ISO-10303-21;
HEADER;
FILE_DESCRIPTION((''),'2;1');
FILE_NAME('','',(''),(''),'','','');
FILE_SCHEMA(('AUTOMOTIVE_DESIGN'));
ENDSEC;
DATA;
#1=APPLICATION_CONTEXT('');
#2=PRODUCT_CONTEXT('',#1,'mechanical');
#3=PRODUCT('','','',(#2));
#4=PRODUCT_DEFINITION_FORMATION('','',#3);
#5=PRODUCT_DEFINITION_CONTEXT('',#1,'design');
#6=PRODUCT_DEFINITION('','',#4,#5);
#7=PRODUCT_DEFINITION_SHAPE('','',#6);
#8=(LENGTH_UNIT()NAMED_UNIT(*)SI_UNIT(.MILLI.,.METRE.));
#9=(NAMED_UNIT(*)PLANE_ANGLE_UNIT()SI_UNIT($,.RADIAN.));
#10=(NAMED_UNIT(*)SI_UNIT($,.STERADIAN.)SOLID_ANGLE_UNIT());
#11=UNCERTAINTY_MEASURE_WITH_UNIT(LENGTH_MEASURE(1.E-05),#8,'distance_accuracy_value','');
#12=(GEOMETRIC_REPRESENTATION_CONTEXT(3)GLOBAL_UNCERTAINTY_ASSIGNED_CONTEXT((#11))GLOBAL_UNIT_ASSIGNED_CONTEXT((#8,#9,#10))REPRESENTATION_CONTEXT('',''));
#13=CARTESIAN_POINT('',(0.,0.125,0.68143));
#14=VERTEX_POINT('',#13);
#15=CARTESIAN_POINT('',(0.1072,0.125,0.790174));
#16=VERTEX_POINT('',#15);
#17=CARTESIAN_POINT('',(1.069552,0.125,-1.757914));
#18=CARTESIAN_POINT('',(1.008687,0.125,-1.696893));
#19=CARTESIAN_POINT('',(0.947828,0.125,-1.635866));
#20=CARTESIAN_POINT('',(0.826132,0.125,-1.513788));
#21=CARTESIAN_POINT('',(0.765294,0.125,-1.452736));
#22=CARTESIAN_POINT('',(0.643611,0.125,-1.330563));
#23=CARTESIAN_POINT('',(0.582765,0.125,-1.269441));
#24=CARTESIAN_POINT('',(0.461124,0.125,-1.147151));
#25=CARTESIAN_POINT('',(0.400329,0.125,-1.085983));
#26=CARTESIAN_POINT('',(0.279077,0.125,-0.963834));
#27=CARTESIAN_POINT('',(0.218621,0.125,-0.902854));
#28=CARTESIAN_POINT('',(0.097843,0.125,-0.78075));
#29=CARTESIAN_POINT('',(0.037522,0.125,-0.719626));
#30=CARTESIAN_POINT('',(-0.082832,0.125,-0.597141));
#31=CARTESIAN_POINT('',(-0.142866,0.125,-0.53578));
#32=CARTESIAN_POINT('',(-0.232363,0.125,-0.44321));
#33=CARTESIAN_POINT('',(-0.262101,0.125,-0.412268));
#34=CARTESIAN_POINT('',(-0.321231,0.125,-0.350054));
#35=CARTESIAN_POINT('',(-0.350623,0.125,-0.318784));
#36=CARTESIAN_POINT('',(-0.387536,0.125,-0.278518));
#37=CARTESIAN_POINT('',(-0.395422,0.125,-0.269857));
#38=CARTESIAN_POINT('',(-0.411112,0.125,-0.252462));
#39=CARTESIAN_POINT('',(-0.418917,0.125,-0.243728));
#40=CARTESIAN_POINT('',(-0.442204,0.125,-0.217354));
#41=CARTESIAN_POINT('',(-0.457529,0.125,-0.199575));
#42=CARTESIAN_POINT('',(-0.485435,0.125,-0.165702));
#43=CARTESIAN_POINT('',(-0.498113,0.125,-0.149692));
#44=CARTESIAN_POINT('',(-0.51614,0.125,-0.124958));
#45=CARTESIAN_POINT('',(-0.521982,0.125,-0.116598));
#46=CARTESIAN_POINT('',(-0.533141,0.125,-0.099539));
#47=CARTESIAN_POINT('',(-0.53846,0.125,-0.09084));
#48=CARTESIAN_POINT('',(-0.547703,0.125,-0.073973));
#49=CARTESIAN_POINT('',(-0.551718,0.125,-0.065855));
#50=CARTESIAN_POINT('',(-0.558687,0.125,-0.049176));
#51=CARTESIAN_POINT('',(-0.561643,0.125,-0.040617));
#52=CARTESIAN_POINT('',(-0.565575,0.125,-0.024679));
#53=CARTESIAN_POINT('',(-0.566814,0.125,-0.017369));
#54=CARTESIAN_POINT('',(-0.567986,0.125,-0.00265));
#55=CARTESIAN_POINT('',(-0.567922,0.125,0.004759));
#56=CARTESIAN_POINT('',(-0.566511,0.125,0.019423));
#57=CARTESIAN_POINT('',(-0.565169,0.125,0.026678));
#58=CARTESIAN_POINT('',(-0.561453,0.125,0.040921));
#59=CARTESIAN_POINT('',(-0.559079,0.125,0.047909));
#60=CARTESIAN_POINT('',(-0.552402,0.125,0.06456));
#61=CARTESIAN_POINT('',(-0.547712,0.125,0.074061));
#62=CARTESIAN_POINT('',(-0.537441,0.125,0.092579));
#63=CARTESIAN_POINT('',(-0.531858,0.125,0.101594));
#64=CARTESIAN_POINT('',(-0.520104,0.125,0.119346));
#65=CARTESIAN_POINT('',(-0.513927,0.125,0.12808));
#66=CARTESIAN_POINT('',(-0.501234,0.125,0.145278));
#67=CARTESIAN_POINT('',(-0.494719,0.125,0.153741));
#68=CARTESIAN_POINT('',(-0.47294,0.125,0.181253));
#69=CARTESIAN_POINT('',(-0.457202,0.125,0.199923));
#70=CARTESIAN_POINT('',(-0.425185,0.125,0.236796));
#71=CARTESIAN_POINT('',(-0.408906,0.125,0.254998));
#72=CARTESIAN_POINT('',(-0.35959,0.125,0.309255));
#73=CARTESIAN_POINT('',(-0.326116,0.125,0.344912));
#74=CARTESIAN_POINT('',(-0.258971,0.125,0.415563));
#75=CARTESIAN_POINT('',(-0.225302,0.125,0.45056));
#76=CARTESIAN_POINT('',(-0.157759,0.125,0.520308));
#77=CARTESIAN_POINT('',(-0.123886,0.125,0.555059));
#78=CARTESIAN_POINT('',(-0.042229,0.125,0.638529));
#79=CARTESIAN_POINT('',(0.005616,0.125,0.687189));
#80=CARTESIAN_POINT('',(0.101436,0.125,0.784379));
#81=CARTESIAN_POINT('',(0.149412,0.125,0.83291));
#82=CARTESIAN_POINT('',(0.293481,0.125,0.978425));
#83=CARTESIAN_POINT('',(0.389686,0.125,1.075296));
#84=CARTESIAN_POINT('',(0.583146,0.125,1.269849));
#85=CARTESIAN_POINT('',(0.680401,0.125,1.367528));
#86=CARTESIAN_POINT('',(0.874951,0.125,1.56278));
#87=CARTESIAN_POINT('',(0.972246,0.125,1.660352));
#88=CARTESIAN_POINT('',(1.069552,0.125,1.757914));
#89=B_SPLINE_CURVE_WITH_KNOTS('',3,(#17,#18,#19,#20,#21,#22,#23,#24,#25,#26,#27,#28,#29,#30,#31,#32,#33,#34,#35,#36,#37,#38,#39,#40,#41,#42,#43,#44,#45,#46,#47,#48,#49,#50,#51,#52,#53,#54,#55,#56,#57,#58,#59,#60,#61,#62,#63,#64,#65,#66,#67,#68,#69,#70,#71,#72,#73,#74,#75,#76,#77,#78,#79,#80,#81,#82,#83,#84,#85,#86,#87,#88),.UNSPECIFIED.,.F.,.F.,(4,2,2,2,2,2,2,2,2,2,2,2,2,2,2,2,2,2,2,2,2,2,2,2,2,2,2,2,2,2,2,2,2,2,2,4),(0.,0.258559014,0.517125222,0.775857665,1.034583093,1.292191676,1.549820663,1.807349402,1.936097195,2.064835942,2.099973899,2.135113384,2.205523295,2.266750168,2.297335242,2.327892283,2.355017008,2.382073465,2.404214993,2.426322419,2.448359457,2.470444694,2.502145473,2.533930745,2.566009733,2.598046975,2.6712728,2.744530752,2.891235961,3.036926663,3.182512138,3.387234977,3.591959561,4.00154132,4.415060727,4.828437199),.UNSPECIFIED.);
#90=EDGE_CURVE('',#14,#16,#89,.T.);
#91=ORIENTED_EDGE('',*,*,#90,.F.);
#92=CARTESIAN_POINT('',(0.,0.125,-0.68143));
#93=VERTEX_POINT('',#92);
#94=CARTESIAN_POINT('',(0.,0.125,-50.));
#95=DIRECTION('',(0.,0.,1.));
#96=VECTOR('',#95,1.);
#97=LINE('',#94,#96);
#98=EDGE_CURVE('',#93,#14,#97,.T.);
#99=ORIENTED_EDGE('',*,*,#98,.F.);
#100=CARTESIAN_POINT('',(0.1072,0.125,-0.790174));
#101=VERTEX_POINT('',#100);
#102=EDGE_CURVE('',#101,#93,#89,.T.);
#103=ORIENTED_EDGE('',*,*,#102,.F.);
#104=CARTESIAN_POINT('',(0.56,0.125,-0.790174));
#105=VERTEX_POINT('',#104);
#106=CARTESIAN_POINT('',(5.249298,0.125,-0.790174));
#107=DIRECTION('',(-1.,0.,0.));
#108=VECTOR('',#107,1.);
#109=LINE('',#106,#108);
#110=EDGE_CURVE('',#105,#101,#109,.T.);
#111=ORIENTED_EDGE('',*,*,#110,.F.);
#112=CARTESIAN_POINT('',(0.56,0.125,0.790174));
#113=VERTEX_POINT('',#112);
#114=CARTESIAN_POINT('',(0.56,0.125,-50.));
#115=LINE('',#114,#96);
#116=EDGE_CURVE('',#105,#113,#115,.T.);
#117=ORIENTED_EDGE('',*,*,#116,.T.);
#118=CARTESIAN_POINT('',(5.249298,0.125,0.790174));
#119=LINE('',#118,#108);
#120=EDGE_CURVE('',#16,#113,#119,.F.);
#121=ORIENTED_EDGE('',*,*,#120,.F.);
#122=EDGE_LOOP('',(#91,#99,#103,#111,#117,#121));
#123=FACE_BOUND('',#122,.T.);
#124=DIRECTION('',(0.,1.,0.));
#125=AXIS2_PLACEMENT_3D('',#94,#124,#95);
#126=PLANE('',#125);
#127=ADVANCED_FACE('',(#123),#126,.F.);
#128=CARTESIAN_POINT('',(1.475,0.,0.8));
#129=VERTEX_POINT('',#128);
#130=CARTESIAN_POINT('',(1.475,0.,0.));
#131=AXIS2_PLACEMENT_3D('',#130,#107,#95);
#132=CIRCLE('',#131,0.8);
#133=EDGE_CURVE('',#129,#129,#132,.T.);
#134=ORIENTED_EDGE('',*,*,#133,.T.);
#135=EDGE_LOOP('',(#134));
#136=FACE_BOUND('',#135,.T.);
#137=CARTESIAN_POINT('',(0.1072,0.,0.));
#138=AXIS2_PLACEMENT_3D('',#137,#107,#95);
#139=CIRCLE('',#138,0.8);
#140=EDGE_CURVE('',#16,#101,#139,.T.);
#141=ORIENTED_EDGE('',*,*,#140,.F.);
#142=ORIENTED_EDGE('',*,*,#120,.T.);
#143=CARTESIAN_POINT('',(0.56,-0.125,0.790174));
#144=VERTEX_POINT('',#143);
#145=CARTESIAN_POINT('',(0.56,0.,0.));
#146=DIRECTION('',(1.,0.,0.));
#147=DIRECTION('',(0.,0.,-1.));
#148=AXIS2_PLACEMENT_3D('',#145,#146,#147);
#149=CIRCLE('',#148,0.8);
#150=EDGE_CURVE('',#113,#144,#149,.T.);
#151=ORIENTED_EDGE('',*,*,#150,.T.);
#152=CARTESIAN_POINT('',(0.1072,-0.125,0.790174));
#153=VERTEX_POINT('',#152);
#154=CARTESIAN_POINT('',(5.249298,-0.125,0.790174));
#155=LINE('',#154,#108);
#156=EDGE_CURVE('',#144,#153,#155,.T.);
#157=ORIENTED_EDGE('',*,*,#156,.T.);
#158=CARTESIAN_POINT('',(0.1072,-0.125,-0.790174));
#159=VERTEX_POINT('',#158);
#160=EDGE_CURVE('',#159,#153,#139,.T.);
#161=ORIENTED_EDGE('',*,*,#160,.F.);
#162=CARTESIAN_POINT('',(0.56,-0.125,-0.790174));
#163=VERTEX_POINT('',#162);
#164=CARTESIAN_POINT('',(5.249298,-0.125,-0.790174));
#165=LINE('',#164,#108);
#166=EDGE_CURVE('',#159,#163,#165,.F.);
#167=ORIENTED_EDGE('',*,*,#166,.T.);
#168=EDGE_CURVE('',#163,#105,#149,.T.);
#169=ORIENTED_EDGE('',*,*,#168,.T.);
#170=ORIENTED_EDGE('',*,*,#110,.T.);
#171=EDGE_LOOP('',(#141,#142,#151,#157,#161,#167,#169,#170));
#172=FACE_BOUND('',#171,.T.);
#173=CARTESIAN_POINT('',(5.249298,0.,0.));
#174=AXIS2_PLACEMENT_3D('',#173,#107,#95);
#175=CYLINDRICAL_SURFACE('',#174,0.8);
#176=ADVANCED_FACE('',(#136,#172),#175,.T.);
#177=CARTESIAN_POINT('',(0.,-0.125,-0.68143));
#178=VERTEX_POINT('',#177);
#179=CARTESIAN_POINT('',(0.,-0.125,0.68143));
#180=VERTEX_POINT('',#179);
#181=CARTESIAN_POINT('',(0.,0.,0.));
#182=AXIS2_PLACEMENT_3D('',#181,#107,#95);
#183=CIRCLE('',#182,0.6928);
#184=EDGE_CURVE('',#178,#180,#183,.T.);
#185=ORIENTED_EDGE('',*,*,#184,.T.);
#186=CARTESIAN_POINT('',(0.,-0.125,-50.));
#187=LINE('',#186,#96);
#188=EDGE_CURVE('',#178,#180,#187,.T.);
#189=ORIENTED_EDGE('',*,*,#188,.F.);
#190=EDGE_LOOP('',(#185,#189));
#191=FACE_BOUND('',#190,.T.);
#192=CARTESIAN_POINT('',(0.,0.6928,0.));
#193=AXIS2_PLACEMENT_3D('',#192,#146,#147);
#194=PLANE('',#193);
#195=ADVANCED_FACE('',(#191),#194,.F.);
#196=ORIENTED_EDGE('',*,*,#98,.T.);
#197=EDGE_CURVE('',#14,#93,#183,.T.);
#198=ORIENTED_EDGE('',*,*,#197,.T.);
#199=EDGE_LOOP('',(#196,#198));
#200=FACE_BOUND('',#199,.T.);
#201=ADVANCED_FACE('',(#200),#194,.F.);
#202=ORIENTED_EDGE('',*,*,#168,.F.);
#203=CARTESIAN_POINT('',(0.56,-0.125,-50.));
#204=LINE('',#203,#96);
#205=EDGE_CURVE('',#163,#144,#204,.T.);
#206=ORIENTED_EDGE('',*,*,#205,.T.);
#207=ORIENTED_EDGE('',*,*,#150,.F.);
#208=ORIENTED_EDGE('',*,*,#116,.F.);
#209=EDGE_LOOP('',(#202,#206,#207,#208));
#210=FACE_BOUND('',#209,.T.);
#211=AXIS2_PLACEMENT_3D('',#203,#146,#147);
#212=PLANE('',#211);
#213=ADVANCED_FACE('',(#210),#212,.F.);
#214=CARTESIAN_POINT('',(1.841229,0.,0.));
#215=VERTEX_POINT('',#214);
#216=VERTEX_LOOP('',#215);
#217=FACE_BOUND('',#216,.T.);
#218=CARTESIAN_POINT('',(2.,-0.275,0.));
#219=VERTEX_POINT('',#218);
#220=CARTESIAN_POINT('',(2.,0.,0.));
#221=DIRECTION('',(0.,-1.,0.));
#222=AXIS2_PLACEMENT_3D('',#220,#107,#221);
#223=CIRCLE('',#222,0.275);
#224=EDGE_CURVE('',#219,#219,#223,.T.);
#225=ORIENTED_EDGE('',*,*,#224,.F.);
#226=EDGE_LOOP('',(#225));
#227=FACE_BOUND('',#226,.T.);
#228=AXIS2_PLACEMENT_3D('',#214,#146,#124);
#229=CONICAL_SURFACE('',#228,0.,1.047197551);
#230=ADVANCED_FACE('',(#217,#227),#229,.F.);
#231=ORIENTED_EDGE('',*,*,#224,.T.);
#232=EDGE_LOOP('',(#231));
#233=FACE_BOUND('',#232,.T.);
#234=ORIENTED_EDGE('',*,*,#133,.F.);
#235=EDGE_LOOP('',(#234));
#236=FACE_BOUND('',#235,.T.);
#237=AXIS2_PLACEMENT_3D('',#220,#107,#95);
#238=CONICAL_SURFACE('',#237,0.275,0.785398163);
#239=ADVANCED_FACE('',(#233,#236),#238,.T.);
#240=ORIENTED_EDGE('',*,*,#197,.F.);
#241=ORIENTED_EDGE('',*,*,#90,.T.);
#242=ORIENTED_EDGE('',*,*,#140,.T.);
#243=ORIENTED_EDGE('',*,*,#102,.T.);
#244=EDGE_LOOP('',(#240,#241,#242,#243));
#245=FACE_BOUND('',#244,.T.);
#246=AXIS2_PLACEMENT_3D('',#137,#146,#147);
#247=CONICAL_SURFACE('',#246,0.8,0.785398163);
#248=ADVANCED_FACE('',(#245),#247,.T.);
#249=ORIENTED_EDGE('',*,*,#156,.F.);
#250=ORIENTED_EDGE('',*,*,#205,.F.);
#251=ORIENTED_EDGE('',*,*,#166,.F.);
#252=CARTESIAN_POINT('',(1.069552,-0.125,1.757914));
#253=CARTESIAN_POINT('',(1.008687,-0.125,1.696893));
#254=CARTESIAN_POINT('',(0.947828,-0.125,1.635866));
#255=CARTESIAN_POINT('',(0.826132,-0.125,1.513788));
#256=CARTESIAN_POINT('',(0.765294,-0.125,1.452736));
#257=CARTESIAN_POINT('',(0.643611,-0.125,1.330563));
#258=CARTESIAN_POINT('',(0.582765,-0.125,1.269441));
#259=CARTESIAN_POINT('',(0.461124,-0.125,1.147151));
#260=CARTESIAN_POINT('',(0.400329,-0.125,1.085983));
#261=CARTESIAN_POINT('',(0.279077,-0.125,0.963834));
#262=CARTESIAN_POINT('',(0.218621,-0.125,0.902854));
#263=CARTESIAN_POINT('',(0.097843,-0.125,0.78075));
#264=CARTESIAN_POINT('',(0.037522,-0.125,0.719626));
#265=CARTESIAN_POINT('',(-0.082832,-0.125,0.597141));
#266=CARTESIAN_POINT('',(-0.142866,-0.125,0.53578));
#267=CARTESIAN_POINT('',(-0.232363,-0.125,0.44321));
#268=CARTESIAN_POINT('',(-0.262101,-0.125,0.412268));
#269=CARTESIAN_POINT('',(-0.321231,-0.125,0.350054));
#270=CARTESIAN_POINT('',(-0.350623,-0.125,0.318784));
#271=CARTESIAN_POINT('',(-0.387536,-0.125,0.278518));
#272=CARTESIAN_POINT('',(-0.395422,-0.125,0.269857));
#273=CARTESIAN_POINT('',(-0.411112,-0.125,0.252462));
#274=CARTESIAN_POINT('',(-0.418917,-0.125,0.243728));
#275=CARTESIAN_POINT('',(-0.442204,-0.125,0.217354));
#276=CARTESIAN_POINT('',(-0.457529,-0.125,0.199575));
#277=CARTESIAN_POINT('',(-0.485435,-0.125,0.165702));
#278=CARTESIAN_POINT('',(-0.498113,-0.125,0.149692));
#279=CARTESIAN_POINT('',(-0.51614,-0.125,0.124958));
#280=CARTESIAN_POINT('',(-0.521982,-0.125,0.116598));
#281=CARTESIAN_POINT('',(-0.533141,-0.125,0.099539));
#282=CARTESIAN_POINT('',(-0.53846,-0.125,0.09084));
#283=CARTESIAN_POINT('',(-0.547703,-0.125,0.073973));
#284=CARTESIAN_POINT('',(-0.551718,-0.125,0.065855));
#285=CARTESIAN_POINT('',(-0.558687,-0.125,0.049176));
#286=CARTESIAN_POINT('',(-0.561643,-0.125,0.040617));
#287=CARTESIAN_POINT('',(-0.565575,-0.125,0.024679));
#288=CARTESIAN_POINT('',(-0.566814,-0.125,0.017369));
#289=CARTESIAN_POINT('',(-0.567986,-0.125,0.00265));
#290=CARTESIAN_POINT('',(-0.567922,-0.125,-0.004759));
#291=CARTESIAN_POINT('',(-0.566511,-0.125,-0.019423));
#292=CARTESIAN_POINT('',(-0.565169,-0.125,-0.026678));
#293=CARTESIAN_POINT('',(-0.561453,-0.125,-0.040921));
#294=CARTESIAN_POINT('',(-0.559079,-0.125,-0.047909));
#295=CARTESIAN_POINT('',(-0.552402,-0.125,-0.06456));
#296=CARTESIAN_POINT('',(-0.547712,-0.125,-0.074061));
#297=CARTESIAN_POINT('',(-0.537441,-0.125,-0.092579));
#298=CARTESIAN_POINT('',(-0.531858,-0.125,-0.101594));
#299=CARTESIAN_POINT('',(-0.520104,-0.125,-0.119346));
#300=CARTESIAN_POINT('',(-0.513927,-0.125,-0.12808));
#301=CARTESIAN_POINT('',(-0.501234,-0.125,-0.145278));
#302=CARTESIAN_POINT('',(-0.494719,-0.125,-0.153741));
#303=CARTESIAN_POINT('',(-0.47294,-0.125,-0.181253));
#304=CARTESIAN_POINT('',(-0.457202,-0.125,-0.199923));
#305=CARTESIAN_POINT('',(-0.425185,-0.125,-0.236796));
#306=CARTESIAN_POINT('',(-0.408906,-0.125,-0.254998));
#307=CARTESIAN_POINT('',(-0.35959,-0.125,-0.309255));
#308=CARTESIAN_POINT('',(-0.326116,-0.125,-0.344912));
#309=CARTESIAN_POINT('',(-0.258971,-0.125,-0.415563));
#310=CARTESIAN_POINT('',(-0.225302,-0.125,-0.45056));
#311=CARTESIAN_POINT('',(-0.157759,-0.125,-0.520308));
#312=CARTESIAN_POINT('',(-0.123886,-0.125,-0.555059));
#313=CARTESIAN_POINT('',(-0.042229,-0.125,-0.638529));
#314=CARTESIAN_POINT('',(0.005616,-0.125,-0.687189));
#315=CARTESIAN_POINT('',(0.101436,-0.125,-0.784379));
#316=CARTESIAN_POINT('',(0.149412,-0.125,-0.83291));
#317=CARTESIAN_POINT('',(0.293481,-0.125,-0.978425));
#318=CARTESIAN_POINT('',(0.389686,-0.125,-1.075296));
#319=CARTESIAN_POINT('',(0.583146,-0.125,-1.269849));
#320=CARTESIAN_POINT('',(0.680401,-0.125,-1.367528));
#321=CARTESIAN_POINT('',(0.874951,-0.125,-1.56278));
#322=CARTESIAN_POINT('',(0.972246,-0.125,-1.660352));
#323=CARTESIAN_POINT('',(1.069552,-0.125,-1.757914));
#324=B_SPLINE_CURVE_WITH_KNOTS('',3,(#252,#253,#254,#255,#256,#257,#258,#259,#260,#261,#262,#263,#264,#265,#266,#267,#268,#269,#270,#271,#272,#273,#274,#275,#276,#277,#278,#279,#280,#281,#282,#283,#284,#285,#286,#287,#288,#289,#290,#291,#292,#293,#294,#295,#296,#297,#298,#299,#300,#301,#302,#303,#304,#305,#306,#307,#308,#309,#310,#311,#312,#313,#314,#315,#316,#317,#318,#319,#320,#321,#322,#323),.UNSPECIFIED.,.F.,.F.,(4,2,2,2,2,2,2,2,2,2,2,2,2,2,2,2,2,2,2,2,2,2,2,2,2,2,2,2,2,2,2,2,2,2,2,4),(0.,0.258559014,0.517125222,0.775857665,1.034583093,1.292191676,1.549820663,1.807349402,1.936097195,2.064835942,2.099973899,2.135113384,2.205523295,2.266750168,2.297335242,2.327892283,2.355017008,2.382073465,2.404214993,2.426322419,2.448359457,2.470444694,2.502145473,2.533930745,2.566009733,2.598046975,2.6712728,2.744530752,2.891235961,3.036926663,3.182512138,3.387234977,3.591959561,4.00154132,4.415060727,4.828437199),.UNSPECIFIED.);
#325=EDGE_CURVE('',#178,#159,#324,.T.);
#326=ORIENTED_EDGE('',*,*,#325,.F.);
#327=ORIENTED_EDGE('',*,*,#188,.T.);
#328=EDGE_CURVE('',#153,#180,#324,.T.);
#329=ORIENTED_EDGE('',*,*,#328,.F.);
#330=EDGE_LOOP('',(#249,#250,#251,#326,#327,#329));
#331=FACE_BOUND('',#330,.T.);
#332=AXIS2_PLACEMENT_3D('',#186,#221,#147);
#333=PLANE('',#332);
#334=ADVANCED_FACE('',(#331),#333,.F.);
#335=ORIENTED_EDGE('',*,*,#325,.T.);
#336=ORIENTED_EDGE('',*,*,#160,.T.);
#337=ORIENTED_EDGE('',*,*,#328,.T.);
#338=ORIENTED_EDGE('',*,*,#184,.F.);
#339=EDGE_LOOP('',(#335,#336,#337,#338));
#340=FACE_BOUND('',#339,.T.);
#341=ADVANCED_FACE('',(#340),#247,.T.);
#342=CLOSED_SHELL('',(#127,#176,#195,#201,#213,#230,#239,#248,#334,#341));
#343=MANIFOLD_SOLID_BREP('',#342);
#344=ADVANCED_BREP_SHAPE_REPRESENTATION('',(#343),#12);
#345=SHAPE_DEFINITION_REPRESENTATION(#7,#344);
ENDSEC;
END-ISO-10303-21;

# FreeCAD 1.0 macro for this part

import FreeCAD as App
import Part
import Sketcher
Q = App.Units.Quantity

doc = App.newDocument("Part")
params = doc.addObject("Spreadsheet::Sheet", "Params")
for row, (alias, value) in enumerate([
    ("sketch1_width", "2 mm"),
    ("revolution_angle", "360 deg"),
    ("sketch2_width", "0.56 mm"),
    ("sketch2_height", "0.25 mm"),
    ("pocket1_length", "100 mm"),
    ("groove_angle", "360 deg"),
], start=1):
    params.set(f"A{row}", alias)
    params.set(f"B{row}", "=" + value)
    params.setAlias(f"B{row}", alias)

body = doc.addObject("PartDesign::Body", "Body")

# Sketch on XY plane
sketch1 = body.newObject("Sketcher::SketchObject", "Sketch")
sketch1.AttachmentSupport = (doc.getObject("XY_Plane"), [""])
sketch1.MapMode = "FlatFace"
sketch1.addGeometry([
    Part.LineSegment(App.Vector(0, 0, 0), App.Vector(2, 0, 0)),  # 0
    Part.LineSegment(App.Vector(2, 0, 0), App.Vector(2, 0.28, 0)),  # 1
    Part.LineSegment(App.Vector(2, 0.28, 0), App.Vector(1.48, 0.8, 0)),  # 2
    Part.LineSegment(App.Vector(1.48, 0.8, 0), App.Vector(0.11, 0.8, 0)),  # 3
    Part.LineSegment(App.Vector(0.11, 0.8, 0), App.Vector(0, 0.69, 0)),  # 4
    Part.LineSegment(App.Vector(0, 0.69, 0), App.Vector(0, 0, 0)),  # 5
], False)
sketch1.addConstraint([
    Sketcher.Constraint("Coincident", 0, 2, 1, 1),
    Sketcher.Constraint("Coincident", 1, 2, 2, 1),
    Sketcher.Constraint("Coincident", 2, 2, 3, 1),
    Sketcher.Constraint("Coincident", 3, 2, 4, 1),
    Sketcher.Constraint("Coincident", 4, 2, 5, 1),
    Sketcher.Constraint("Coincident", 5, 2, 0, 1),
    Sketcher.Constraint("Horizontal", 0),
    Sketcher.Constraint("Vertical", 1),
    Sketcher.Constraint("Horizontal", 3),
    Sketcher.Constraint("Vertical", 5),
    Sketcher.Constraint("Coincident", 5, 2, -1, 1),
    Sketcher.Constraint("Perpendicular", 2, 4),
    Sketcher.Constraint("DistanceX", 0, 1, 0, 2, 2.0),
    Sketcher.Constraint("Angle", 2, Q("135 deg")),
    Sketcher.Constraint("DistanceY", -1, 1, 2, 2, 0.8),
    Sketcher.Constraint("DistanceY", 1, 1, 1, 2, 0.275),
    Sketcher.Constraint("DistanceX", 3, 2, 3, 1, 1.3678),
])
sketch1.setExpression("Constraints[12]", "Params.sketch1_width")
revolution = body.newObject("PartDesign::Revolution", "Revolution")
revolution.Profile = sketch1
revolution.ReferenceAxis = (sketch1, ["H_Axis"])
revolution.setExpression("Angle", "Params.revolution_angle")

# Sketch on XY plane
sketch2 = body.newObject("Sketcher::SketchObject", "Sketch001")
sketch2.AttachmentSupport = (doc.getObject("XY_Plane"), [""])
sketch2.MapMode = "FlatFace"
sketch2.addGeometry([
    Part.LineSegment(App.Vector(0, 0.12, 0), App.Vector(0, -0.12, 0)),
    Part.LineSegment(App.Vector(0, -0.12, 0), App.Vector(0.56, -0.12, 0)),
    Part.LineSegment(App.Vector(0.56, -0.12, 0), App.Vector(0.56, 0.12, 0)),
    Part.LineSegment(App.Vector(0.56, 0.12, 0), App.Vector(0, 0.12, 0)),
], False)
sketch2.addConstraint([
    Sketcher.Constraint("Coincident", 0, 2, 1, 1),
    Sketcher.Constraint("Coincident", 1, 2, 2, 1),
    Sketcher.Constraint("Coincident", 2, 2, 3, 1),
    Sketcher.Constraint("Coincident", 3, 2, 0, 1),
    Sketcher.Constraint("Vertical", 0),
    Sketcher.Constraint("Horizontal", 1),
    Sketcher.Constraint("Vertical", 2),
    Sketcher.Constraint("Horizontal", 3),
    Sketcher.Constraint("Symmetric", 0, 2, 3, 2, -1, 1),
    Sketcher.Constraint("DistanceX", 1, 1, 1, 2, 0.56),
    Sketcher.Constraint("DistanceY", 0, 2, 0, 1, 0.25),
])
sketch2.setExpression("Constraints[9]", "Params.sketch2_width")
sketch2.setExpression("Constraints[10]", "Params.sketch2_height")
pocket1 = body.newObject("PartDesign::Pocket", "Pocket")
pocket1.Profile = sketch2
pocket1.setExpression("Length", "Params.pocket1_length")
pocket1.Midplane = True

# Sketch on XY plane
sketch3 = body.newObject("Sketcher::SketchObject", "Sketch002")
sketch3.AttachmentSupport = (doc.getObject("XY_Plane"), [""])
sketch3.MapMode = "FlatFace"
sketch3.addGeometry([
    Part.LineSegment(App.Vector(2, 0, 0), App.Vector(1.84, 0, 0)),
    Part.LineSegment(App.Vector(1.84, 0, 0), App.Vector(2, -0.28, 0)),
    Part.LineSegment(App.Vector(2, -0.28, 0), App.Vector(2, 0, 0)),
], False)
sketch3.addConstraint([
    Sketcher.Constraint("Coincident", 0, 2, 1, 1),
    Sketcher.Constraint("Coincident", 1, 2, 2, 1),
    Sketcher.Constraint("Coincident", 2, 2, 0, 1),
    Sketcher.Constraint("Horizontal", 0),
    Sketcher.Constraint("Vertical", 2),
    Sketcher.Constraint("PointOnObject", 0, 2, -1),
    Sketcher.Constraint("Angle", 1, Q("-60 deg")),
    Sketcher.Constraint("DistanceX", -1, 1, 1, 2, 2.0),
    Sketcher.Constraint("DistanceY", 2, 1, 2, 2, 0.275),
])
groove = body.newObject("PartDesign::Groove", "Groove")
groove.Profile = sketch3
groove.ReferenceAxis = (sketch3, ["H_Axis"])
groove.setExpression("Angle", "Params.groove_angle")

doc.recompute()
